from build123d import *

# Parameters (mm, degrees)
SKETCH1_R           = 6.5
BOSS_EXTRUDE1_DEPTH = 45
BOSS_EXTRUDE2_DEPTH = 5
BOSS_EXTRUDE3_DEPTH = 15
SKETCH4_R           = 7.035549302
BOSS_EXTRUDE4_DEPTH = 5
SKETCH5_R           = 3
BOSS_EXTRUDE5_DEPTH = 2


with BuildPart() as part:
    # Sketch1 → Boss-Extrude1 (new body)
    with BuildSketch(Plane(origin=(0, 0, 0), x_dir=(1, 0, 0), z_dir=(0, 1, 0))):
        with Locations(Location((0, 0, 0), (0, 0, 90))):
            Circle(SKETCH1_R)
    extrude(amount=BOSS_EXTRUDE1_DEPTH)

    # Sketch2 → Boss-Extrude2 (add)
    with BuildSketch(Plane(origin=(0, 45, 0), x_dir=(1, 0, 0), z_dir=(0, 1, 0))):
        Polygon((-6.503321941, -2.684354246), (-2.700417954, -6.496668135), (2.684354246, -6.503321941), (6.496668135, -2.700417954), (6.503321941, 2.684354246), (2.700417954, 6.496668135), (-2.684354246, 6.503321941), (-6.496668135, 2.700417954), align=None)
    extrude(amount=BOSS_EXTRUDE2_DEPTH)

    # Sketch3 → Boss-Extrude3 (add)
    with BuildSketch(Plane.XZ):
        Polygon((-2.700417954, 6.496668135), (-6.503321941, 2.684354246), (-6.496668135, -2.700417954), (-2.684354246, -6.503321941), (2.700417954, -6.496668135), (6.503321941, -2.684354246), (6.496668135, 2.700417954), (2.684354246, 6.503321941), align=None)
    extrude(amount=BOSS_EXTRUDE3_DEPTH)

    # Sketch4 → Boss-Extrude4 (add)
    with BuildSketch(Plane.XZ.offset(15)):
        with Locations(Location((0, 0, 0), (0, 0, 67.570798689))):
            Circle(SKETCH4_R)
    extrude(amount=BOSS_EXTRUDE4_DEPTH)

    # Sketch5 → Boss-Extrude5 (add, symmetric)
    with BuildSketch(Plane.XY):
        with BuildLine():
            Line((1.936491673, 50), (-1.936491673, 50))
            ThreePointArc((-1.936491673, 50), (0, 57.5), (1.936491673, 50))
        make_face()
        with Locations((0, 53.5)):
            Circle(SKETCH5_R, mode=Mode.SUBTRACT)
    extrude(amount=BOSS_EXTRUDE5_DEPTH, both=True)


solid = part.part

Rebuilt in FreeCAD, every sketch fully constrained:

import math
import FreeCAD as App
import Part
import Sketcher

V = App.Vector


def add_polygon(sketch, points):
    """Adds a closed chain of lines whose ends are joined by coincident constraints."""
    first, n = sketch.GeometryCount, len(points)
    for a, b in zip(points, points[1:] + points[:1]):
        sketch.addGeometry(Part.LineSegment(App.Vector(*a, 0), App.Vector(*b, 0)), False)
    for i in range(n):
        sketch.addConstraint(Sketcher.Constraint("Coincident", first + i, 2, first + (i + 1) % n, 1))

doc = App.newDocument("Part")
body = doc.addObject("PartDesign::Body", "Body")

# Sketch on XZ plane
sketch1 = body.newObject("Sketcher::SketchObject", "Sketch")
sketch1.AttachmentSupport = (doc.getObject("XZ_Plane"), [""])
sketch1.MapMode = "FlatFace"
sketch1.addGeometry(Part.Circle(V(0, 0, 0), V(0, 0, 1), 6), False)
sketch1.addConstraint([
    Sketcher.Constraint("Coincident", 0, 3, -1, 1),
    Sketcher.Constraint("Diameter", 0, 13.0),
])
pad1 = body.newObject("PartDesign::Pad", "Pad")
pad1.Profile = sketch1
pad1.Length = 45
pad1.Reversed = True

# Sketch on XZ plane
sketch2 = body.newObject("Sketcher::SketchObject", "Sketch001")
sketch2.AttachmentSupport = (doc.getObject("XZ_Plane"), [""])
sketch2.MapMode = "FlatFace"
sketch2.AttachmentOffset = App.Placement(V(0, 0, -45), App.Rotation())
add_polygon(sketch2, [(-7, 3), (-3, 6), (3, 7), (6, 3), (7, -3), (3, -6), (-3, -7), (-6, -3)])  # lines 0-7
sketch2.addConstraint([
    Sketcher.Constraint("Symmetric", 0, 2, 4, 2, -1, 1),
    Sketcher.Constraint("Symmetric", 1, 2, 5, 2, -1, 1),
    Sketcher.Constraint("Symmetric", 2, 2, 6, 2, -1, 1),
    Sketcher.Constraint("Symmetric", 3, 2, 7, 2, -1, 1),
    Sketcher.Constraint("Perpendicular", 0, 2),
    Sketcher.Constraint("Perpendicular", 1, 3),
    Sketcher.Constraint("Equal", 0, 1),
    Sketcher.Constraint("Equal", 1, 2),
    Sketcher.Constraint("Equal", 2, 3),
    Sketcher.Constraint("DistanceY", -1, 1, 0, 2, 6.496668),
    Sketcher.Constraint("DistanceY", -1, 1, 1, 2, 6.503322),
    Sketcher.Constraint("DistanceY", 2, 2, 0, 2, 3.79625),
])
pad2 = body.newObject("PartDesign::Pad", "Pad001")
pad2.Profile = sketch2
pad2.Length = 5
pad2.Reversed = True

# Sketch on XZ plane
sketch3 = body.newObject("Sketcher::SketchObject", "Sketch002")
sketch3.AttachmentSupport = (doc.getObject("XZ_Plane"), [""])
sketch3.MapMode = "FlatFace"
add_polygon(sketch3, [(-3, 6), (-7, 3), (-6, -3), (-3, -7), (3, -6), (7, -3), (6, 3), (3, 7)])  # lines 0-7
sketch3.addConstraint([
    Sketcher.Constraint("Symmetric", 0, 2, 4, 2, -1, 1),
    Sketcher.Constraint("Symmetric", 1, 2, 5, 2, -1, 1),
    Sketcher.Constraint("Symmetric", 2, 2, 6, 2, -1, 1),
    Sketcher.Constraint("Symmetric", 3, 2, 7, 2, -1, 1),
    Sketcher.Constraint("Perpendicular", 0, 2),
    Sketcher.Constraint("Perpendicular", 1, 3),
    Sketcher.Constraint("Equal", 0, 1),
    Sketcher.Constraint("Equal", 1, 2),
    Sketcher.Constraint("Equal", 2, 3),
    Sketcher.Constraint("DistanceX", 0, 2, -1, 1, 6.503322),
    Sketcher.Constraint("DistanceX", 1, 2, -1, 1, 6.496668),
    Sketcher.Constraint("DistanceY", 3, 2, 1, 2, 3.79625),
])
pad3 = body.newObject("PartDesign::Pad", "Pad002")
pad3.Profile = sketch3
pad3.Length = 15

# Sketch on XZ plane
sketch4 = body.newObject("Sketcher::SketchObject", "Sketch003")
sketch4.AttachmentSupport = (doc.getObject("XZ_Plane"), [""])
sketch4.MapMode = "FlatFace"
sketch4.AttachmentOffset = App.Placement(V(0, 0, 15), App.Rotation())
sketch4.addGeometry(Part.Circle(V(0, 0, 0), V(0, 0, 1), 7), False)
sketch4.addConstraint([
    Sketcher.Constraint("Coincident", 0, 3, -1, 1),
    Sketcher.Constraint("Diameter", 0, 14.071099),
])
pad4 = body.newObject("PartDesign::Pad", "Pad003")
pad4.Profile = sketch4
pad4.Length = 5

# Sketch on XY plane
sketch5 = body.newObject("Sketcher::SketchObject", "Sketch004")
sketch5.AttachmentSupport = (doc.getObject("XY_Plane"), [""])
sketch5.MapMode = "FlatFace"
sketch5.addGeometry([
    Part.LineSegment(V(-1.9, 50, 0), V(1.9, 50, 0)),
    Part.ArcOfCircle(Part.Circle(V(0, 53.5, 0), V(0, 0, 1), 4), math.radians(-61), math.radians(241)),
    Part.Circle(V(0, 53.5, 0), V(0, 0, 1), 3),
], False)
sketch5.addConstraint([
    Sketcher.Constraint("Coincident", 0, 1, 1, 2),
    Sketcher.Constraint("Coincident", 1, 1, 0, 2),
    Sketcher.Constraint("Horizontal", 0),
    Sketcher.Constraint("Coincident", 2, 3, 1, 3),
    Sketcher.Constraint("PointOnObject", 1, 3, -2),
    Sketcher.Constraint("Diameter", 2, 6.0),
    Sketcher.Constraint("Radius", 1, 4.0),
    Sketcher.Constraint("DistanceY", -1, 1, 0, 1, 50.0),
    Sketcher.Constraint("DistanceY", -1, 1, 1, 3, 53.5),
])
pad5 = body.newObject("PartDesign::Pad", "Pad004")
pad5.Profile = sketch5
pad5.Length = 4
pad5.Midplane = True

doc.recompute()
